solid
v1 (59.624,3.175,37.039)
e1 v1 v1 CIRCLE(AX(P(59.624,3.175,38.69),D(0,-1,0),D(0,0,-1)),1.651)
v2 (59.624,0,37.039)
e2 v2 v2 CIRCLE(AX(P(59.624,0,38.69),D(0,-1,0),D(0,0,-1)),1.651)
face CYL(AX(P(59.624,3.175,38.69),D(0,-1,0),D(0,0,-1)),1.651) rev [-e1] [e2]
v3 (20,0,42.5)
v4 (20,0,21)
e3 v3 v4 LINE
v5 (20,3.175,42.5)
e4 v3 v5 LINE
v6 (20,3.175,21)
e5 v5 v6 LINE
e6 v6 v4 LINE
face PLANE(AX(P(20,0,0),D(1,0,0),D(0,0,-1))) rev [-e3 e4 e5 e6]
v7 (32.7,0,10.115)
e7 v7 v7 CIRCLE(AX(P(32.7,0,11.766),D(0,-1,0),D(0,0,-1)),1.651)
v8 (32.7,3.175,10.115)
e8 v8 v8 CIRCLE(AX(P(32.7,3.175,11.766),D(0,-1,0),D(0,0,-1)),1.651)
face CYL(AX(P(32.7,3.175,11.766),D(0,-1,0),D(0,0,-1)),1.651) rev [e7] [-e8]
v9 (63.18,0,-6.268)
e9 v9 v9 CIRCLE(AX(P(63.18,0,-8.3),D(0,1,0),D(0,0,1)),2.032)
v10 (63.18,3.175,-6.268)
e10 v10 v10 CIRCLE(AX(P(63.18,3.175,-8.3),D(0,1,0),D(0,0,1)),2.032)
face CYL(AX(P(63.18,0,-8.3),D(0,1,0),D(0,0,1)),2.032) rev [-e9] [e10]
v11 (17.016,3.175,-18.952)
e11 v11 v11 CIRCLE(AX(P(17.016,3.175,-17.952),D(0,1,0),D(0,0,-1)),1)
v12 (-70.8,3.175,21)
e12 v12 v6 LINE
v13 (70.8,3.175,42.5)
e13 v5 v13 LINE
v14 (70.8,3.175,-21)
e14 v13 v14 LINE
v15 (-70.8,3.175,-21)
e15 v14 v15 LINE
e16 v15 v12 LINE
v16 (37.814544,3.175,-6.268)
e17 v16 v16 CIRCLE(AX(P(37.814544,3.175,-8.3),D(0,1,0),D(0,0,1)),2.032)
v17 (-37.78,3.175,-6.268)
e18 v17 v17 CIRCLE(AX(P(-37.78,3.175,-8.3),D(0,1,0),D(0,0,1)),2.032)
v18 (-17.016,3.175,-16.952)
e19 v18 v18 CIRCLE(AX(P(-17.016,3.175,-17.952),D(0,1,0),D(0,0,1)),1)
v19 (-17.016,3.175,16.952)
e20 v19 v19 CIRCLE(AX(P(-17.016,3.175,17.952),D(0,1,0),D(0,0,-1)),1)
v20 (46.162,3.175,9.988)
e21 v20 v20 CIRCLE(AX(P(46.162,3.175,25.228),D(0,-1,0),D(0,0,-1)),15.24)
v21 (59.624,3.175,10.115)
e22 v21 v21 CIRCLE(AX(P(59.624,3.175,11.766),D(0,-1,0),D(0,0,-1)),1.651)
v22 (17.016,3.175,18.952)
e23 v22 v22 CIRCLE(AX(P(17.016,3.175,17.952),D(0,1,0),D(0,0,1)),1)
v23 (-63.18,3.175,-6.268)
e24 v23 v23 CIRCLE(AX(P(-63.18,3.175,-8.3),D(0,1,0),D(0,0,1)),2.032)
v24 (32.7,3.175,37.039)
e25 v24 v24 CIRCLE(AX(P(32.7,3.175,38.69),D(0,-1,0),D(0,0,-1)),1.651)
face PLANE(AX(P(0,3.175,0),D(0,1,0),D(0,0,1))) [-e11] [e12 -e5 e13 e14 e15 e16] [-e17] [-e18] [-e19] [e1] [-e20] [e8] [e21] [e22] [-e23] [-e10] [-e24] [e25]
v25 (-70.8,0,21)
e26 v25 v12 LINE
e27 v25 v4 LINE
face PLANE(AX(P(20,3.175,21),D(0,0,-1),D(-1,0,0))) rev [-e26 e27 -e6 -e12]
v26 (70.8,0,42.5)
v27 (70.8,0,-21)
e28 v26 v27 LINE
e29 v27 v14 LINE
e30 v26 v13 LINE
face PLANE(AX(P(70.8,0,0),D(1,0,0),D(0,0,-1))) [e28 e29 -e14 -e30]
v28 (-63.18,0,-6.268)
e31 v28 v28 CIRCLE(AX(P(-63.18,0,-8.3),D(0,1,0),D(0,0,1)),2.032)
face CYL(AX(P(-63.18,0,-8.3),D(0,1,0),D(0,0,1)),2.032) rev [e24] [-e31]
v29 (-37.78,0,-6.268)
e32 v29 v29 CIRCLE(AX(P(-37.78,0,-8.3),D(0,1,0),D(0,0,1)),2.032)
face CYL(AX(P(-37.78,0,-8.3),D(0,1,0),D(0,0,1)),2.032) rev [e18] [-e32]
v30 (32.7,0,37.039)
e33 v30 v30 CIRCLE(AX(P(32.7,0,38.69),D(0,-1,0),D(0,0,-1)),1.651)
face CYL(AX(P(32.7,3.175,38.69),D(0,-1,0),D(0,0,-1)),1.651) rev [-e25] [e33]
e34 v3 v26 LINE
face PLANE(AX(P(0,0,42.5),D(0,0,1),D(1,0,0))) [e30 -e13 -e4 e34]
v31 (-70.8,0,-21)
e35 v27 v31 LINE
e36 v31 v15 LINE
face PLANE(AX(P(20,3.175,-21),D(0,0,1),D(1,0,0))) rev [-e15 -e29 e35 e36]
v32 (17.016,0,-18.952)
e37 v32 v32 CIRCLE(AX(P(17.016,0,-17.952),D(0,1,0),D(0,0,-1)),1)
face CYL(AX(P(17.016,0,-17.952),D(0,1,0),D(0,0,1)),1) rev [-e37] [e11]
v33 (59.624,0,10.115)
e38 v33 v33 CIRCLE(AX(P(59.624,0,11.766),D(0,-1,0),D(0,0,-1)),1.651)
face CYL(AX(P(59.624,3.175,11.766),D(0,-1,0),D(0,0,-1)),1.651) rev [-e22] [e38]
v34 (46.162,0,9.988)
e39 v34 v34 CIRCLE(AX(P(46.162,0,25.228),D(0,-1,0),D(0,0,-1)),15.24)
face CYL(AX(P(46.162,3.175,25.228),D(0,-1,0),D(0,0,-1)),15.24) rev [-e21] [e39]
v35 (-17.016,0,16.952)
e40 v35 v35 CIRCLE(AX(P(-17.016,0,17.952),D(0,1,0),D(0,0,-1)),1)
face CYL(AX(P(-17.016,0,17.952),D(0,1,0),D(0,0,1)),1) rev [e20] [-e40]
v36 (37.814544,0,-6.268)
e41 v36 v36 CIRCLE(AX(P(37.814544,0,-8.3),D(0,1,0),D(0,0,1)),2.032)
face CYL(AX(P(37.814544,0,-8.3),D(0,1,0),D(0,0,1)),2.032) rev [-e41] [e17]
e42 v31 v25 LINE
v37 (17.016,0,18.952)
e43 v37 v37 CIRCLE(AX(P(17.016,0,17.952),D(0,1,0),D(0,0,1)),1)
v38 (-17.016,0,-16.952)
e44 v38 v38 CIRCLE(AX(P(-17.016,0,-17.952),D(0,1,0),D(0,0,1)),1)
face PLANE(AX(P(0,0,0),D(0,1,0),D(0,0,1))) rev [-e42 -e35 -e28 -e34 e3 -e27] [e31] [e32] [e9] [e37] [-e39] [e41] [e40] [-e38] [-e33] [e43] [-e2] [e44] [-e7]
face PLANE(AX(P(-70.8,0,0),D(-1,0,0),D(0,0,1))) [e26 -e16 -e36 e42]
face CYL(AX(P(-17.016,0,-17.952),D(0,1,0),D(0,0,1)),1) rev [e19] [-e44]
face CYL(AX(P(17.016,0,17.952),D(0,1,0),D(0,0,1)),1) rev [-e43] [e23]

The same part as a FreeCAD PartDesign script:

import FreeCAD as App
import Part
import Sketcher
from FreeCAD import Vector
Q = App.Units.Quantity

doc = App.newDocument("Part")
body = doc.addObject("PartDesign::Body", "Body")

# Sketch on XZ plane
sketch1 = doc.addObject("Sketcher::SketchObject", "Sketch")
body.addObject(sketch1)
sketch1.AttachmentSupport = (doc.XZ_Plane, [""])
sketch1.MapMode = "FlatFace"
sketch1.addGeometry(Part.LineSegment(Vector(-20, -21, 0), Vector(-20, 21, 0)), False)
sketch1.addGeometry(Part.LineSegment(Vector(-20, 21, 0), Vector(20, 21, 0)), False)
sketch1.addGeometry(Part.LineSegment(Vector(20, 21, 0), Vector(20, -21, 0)), False)
sketch1.addGeometry(Part.LineSegment(Vector(20, -21, 0), Vector(-20, -21, 0)), False)
sketch1.addConstraint(Sketcher.Constraint("Coincident", 0, 2, 1, 1))
sketch1.addConstraint(Sketcher.Constraint("Coincident", 1, 2, 2, 1))
sketch1.addConstraint(Sketcher.Constraint("Coincident", 2, 2, 3, 1))
sketch1.addConstraint(Sketcher.Constraint("Coincident", 3, 2, 0, 1))
sketch1.addConstraint(Sketcher.Constraint("Vertical", 0))
sketch1.addConstraint(Sketcher.Constraint("Horizontal", 1))
sketch1.addConstraint(Sketcher.Constraint("Vertical", 2))
sketch1.addConstraint(Sketcher.Constraint("Horizontal", 3))
sketch1.addConstraint(Sketcher.Constraint("Symmetric", 0, 2, 2, 2, -1, 1))
sketch1.addConstraint(Sketcher.Constraint("DistanceX", 1, 1, 1, 2, 40.0))
sketch1.addConstraint(Sketcher.Constraint("DistanceY", 0, 1, 0, 2, 42.0))
pad1 = doc.addObject("PartDesign::Pad", "Pad")
body.addObject(pad1)
pad1.Profile = sketch1
pad1.Length = Q("0.125 in")
pad1.Reversed = True

# Sketch on XZ plane
sketch2 = doc.addObject("Sketcher::SketchObject", "Sketch001")
body.addObject(sketch2)
sketch2.AttachmentSupport = (doc.XZ_Plane, [""])
sketch2.MapMode = "FlatFace"
sketch2.AttachmentOffset = App.Placement(Vector(0, 0, -0.125 * 25.4), App.Rotation())
sketch2.addGeometry(Part.Circle(Vector(17.016, 17.952, 0), Vector(0, 0, 1), 1), False)
sketch2.addGeometry(Part.Circle(Vector(-17.016, 17.952, 0), Vector(0, 0, 1), 1), False)
sketch2.addGeometry(Part.Circle(Vector(17.016, -17.952, 0), Vector(0, 0, 1), 1), False)
sketch2.addGeometry(Part.Circle(Vector(-17.016, -17.952, 0), Vector(0, 0, 1), 1), False)
sketch2.addConstraint(Sketcher.Constraint("Equal", 0, 1))
sketch2.addConstraint(Sketcher.Constraint("Equal", 1, 2))
sketch2.addConstraint(Sketcher.Constraint("Equal", 2, 3))
sketch2.addConstraint(Sketcher.Constraint("Symmetric", 1, 3, 2, 3, -1, 1))
sketch2.addConstraint(Sketcher.Constraint("Symmetric", 0, 3, 3, 3, -1, 1))
sketch2.addConstraint(Sketcher.Constraint("Symmetric", 0, 3, 1, 3, -2))
sketch2.addConstraint(Sketcher.Constraint("Diameter", 0, 2.0))
sketch2.addConstraint(Sketcher.Constraint("DistanceX", -1, 1, 0, 3, 17.016))
sketch2.addConstraint(Sketcher.Constraint("DistanceY", -1, 1, 0, 3, 17.952))
pocket1 = doc.addObject("PartDesign::Pocket", "Pocket")
body.addObject(pocket1)
pocket1.Profile = sketch2
pocket1.Type = "ThroughAll"
pocket1.Reversed = True

# Sketch on XZ plane
sketch3 = doc.addObject("Sketcher::SketchObject", "Sketch002")
body.addObject(sketch3)
sketch3.AttachmentSupport = (doc.XZ_Plane, [""])
sketch3.MapMode = "FlatFace"
sketch3.AttachmentOffset = App.Placement(Vector(0, 0, -0.125 * 25.4), App.Rotation())
sketch3.addGeometry(Part.LineSegment(Vector(20, -21, 0), Vector(20, 42.5, 0)), False)
sketch3.addGeometry(Part.LineSegment(Vector(20, 42.5, 0), Vector(70.8, 42.5, 0)), False)
sketch3.addGeometry(Part.LineSegment(Vector(70.8, 42.5, 0), Vector(70.8, -21, 0)), False)
sketch3.addGeometry(Part.LineSegment(Vector(70.8, -21, 0), Vector(20, -21, 0)), False)
sketch3.addGeometry(Part.LineSegment(Vector(-70.8, -21, 0), Vector(-70.8, 42.5, 0)), False)
sketch3.addGeometry(Part.LineSegment(Vector(-70.8, 42.5, 0), Vector(-20, 42.5, 0)), False)
sketch3.addGeometry(Part.LineSegment(Vector(-20, 42.5, 0), Vector(-20, -21, 0)), False)
sketch3.addGeometry(Part.LineSegment(Vector(-20, -21, 0), Vector(-70.8, -21, 0)), False)
sketch3.addConstraint(Sketcher.Constraint("Coincident", 0, 2, 1, 1))
sketch3.addConstraint(Sketcher.Constraint("Coincident", 1, 2, 2, 1))
sketch3.addConstraint(Sketcher.Constraint("Coincident", 2, 2, 3, 1))
sketch3.addConstraint(Sketcher.Constraint("Coincident", 3, 2, 0, 1))
sketch3.addConstraint(Sketcher.Constraint("Coincident", 4, 2, 5, 1))
sketch3.addConstraint(Sketcher.Constraint("Coincident", 5, 2, 6, 1))
sketch3.addConstraint(Sketcher.Constraint("Coincident", 6, 2, 7, 1))
sketch3.addConstraint(Sketcher.Constraint("Coincident", 7, 2, 4, 1))
sketch3.addConstraint(Sketcher.Constraint("Vertical", 0))
sketch3.addConstraint(Sketcher.Constraint("Horizontal", 1))
sketch3.addConstraint(Sketcher.Constraint("Vertical", 2))
sketch3.addConstraint(Sketcher.Constraint("Horizontal", 3))
sketch3.addConstraint(Sketcher.Constraint("Vertical", 4))
sketch3.addConstraint(Sketcher.Constraint("Horizontal", 5))
sketch3.addConstraint(Sketcher.Constraint("Vertical", 6))
sketch3.addConstraint(Sketcher.Constraint("Horizontal", 7))
sketch3.addConstraint(Sketcher.Constraint("Symmetric", 1, 2, 4, 2, -2))
sketch3.addConstraint(Sketcher.Constraint("Symmetric", 3, 2, 6, 2, -2))
sketch3.addConstraint(Sketcher.Constraint("DistanceX", 1, 1, 1, 2, Q("2 in")))
sketch3.addConstraint(Sketcher.Constraint("DistanceY", 0, 1, 0, 2, Q("2.5 in")))
sketch3.addConstraint(Sketcher.Constraint("DistanceX", -1, 1, 0, 2, 20.0))
sketch3.addConstraint(Sketcher.Constraint("DistanceY", -1, 1, 0, 2, 42.5))
pad2 = doc.addObject("PartDesign::Pad", "Pad001")
body.addObject(pad2)
pad2.Profile = sketch3
pad2.Length = Q("0.125 in")

# Sketch on XZ plane
sketch4 = doc.addObject("Sketcher::SketchObject", "Sketch003")
body.addObject(sketch4)
sketch4.AttachmentSupport = (doc.XZ_Plane, [""])
sketch4.MapMode = "FlatFace"
sketch4.AttachmentOffset = App.Placement(Vector(0, 0, -0.125 * 25.4), App.Rotation())
sketch4.addGeometry(Part.Circle(Vector(63.18, -8.3, 0), Vector(0, 0, 1), 2.032), False)
sketch4.addGeometry(Part.Circle(Vector(37.814544, -8.3, 0), Vector(0, 0, 1), 2.032), False)
sketch4.addGeometry(Part.Circle(Vector(-37.78, -8.3, 0), Vector(0, 0, 1), 2.032), False)
sketch4.addGeometry(Part.Circle(Vector(-63.18, -8.3, 0), Vector(0, 0, 1), 2.032), False)
sketch4.addConstraint(Sketcher.Constraint("Equal", 0, 1))
sketch4.addConstraint(Sketcher.Constraint("Equal", 1, 2))
sketch4.addConstraint(Sketcher.Constraint("Equal", 2, 3))
sketch4.addConstraint(Sketcher.Constraint("Symmetric", 0, 3, 3, 3, -2))
sketch4.addConstraint(Sketcher.Constraint("Horizontal", 0, 3, 1, 3))
sketch4.addConstraint(Sketcher.Constraint("Horizontal", 1, 3, 2, 3))
sketch4.addConstraint(Sketcher.Constraint("Diameter", 0, Q("0.16 in")))
sketch4.addConstraint(Sketcher.Constraint("DistanceX", 3, 3, 2, 3, Q("1 in")))
sketch4.addConstraint(Sketcher.Constraint("DistanceX", -1, 1, 0, 3, 63.18))
sketch4.addConstraint(Sketcher.Constraint("DistanceY", 0, 3, -1, 1, 8.3))
sketch4.addConstraint(Sketcher.Constraint("DistanceX", -1, 1, 1, 3, 37.814544))
pocket2 = doc.addObject("PartDesign::Pocket", "Pocket001")
body.addObject(pocket2)
pocket2.Profile = sketch4
pocket2.Type = "ThroughAll"
pocket2.Reversed = True

# Sketch on XZ plane
sketch5 = doc.addObject("Sketcher::SketchObject", "Sketch004")
body.addObject(sketch5)
sketch5.AttachmentSupport = (doc.XZ_Plane, [""])
sketch5.MapMode = "FlatFace"
sketch5.addGeometry(Part.Circle(Vector(32.7, 38.69, 0), Vector(0, 0, 1), 1.651), False)
sketch5.addGeometry(Part.Circle(Vector(32.7, 11.766, 0), Vector(0, 0, 1), 1.651), False)
sketch5.addGeometry(Part.Circle(Vector(59.624, 38.69, 0), Vector(0, 0, 1), 1.651), False)
sketch5.addGeometry(Part.Circle(Vector(59.624, 11.766, 0), Vector(0, 0, 1), 1.651), False)
sketch5.addConstraint(Sketcher.Constraint("Equal", 0, 1))
sketch5.addConstraint(Sketcher.Constraint("Equal", 1, 2))
sketch5.addConstraint(Sketcher.Constraint("Equal", 2, 3))
sketch5.addConstraint(Sketcher.Constraint("Horizontal", 0, 3, 2, 3))
sketch5.addConstraint(Sketcher.Constraint("Horizontal", 1, 3, 3, 3))
sketch5.addConstraint(Sketcher.Constraint("Vertical", 0, 3, 1, 3))
sketch5.addConstraint(Sketcher.Constraint("Vertical", 2, 3, 3, 3))
sketch5.addConstraint(Sketcher.Constraint("Diameter", 0, Q("0.13 in")))
sketch5.addConstraint(Sketcher.Constraint("DistanceY", 1, 3, 0, 3, Q("1.06 in")))
sketch5.addConstraint(Sketcher.Constraint("DistanceX", 0, 3, 2, 3, Q("1.06 in")))
sketch5.addConstraint(Sketcher.Constraint("DistanceX", -1, 1, 0, 3, 32.7))
sketch5.addConstraint(Sketcher.Constraint("DistanceY", -1, 1, 0, 3, 38.69))
pocket3 = doc.addObject("PartDesign::Pocket", "Pocket002")
body.addObject(pocket3)
pocket3.Profile = sketch5
pocket3.Type = "ThroughAll"

# Sketch on XZ plane
sketch6 = doc.addObject("Sketcher::SketchObject", "Sketch005")
body.addObject(sketch6)
sketch6.AttachmentSupport = (doc.XZ_Plane, [""])
sketch6.MapMode = "FlatFace"
sketch6.addGeometry(Part.Circle(Vector(46.162, 25.228, 0), Vector(0, 0, 1), 15.24), False)
sketch6.addConstraint(Sketcher.Constraint("Diameter", 0, Q("1.2 in")))
sketch6.addConstraint(Sketcher.Constraint("DistanceX", -1, 1, 0, 3, 46.162))
sketch6.addConstraint(Sketcher.Constraint("DistanceY", -1, 1, 0, 3, 25.228))
pocket4 = doc.addObject("PartDesign::Pocket", "Pocket003")
body.addObject(pocket4)
pocket4.Profile = sketch6
pocket4.Type = "ThroughAll"

# Sketch on XZ plane
sketch7 = doc.addObject("Sketcher::SketchObject", "Sketch006")
body.addObject(sketch7)
sketch7.AttachmentSupport = (doc.XZ_Plane, [""])
sketch7.MapMode = "FlatFace"
sketch7.AttachmentOffset = App.Placement(Vector(0, 0, -0.125 * 25.4), App.Rotation())
sketch7.addGeometry(Part.LineSegment(Vector(-70.8, 21, 0), Vector(-70.8, 42.5, 0)), False)
sketch7.addGeometry(Part.LineSegment(Vector(-70.8, 42.5, 0), Vector(-20, 42.5, 0)), False)
sketch7.addGeometry(Part.LineSegment(Vector(-20, 42.5, 0), Vector(-20, 21, 0)), False)
sketch7.addGeometry(Part.LineSegment(Vector(-20, 21, 0), Vector(-70.8, 21, 0)), False)
sketch7.addConstraint(Sketcher.Constraint("Coincident", 0, 2, 1, 1))
sketch7.addConstraint(Sketcher.Constraint("Coincident", 1, 2, 2, 1))
sketch7.addConstraint(Sketcher.Constraint("Coincident", 2, 2, 3, 1))
sketch7.addConstraint(Sketcher.Constraint("Coincident", 3, 2, 0, 1))
sketch7.addConstraint(Sketcher.Constraint("Vertical", 0))
sketch7.addConstraint(Sketcher.Constraint("Horizontal", 1))
sketch7.addConstraint(Sketcher.Constraint("Vertical", 2))
sketch7.addConstraint(Sketcher.Constraint("Horizontal", 3))
sketch7.addConstraint(Sketcher.Constraint("DistanceX", 1, 1, 1, 2, Q("2 in")))
sketch7.addConstraint(Sketcher.Constraint("DistanceY", 0, 1, 0, 2, 21.5))
sketch7.addConstraint(Sketcher.Constraint("DistanceX", 0, 2, -1, 1, 70.8))
sketch7.addConstraint(Sketcher.Constraint("DistanceY", -1, 1, 0, 2, 42.5))
pocket5 = doc.addObject("PartDesign::Pocket", "Pocket004")
body.addObject(pocket5)
pocket5.Profile = sketch7
pocket5.Type = "ThroughAll"
pocket5.Midplane = True

doc.recompute()
